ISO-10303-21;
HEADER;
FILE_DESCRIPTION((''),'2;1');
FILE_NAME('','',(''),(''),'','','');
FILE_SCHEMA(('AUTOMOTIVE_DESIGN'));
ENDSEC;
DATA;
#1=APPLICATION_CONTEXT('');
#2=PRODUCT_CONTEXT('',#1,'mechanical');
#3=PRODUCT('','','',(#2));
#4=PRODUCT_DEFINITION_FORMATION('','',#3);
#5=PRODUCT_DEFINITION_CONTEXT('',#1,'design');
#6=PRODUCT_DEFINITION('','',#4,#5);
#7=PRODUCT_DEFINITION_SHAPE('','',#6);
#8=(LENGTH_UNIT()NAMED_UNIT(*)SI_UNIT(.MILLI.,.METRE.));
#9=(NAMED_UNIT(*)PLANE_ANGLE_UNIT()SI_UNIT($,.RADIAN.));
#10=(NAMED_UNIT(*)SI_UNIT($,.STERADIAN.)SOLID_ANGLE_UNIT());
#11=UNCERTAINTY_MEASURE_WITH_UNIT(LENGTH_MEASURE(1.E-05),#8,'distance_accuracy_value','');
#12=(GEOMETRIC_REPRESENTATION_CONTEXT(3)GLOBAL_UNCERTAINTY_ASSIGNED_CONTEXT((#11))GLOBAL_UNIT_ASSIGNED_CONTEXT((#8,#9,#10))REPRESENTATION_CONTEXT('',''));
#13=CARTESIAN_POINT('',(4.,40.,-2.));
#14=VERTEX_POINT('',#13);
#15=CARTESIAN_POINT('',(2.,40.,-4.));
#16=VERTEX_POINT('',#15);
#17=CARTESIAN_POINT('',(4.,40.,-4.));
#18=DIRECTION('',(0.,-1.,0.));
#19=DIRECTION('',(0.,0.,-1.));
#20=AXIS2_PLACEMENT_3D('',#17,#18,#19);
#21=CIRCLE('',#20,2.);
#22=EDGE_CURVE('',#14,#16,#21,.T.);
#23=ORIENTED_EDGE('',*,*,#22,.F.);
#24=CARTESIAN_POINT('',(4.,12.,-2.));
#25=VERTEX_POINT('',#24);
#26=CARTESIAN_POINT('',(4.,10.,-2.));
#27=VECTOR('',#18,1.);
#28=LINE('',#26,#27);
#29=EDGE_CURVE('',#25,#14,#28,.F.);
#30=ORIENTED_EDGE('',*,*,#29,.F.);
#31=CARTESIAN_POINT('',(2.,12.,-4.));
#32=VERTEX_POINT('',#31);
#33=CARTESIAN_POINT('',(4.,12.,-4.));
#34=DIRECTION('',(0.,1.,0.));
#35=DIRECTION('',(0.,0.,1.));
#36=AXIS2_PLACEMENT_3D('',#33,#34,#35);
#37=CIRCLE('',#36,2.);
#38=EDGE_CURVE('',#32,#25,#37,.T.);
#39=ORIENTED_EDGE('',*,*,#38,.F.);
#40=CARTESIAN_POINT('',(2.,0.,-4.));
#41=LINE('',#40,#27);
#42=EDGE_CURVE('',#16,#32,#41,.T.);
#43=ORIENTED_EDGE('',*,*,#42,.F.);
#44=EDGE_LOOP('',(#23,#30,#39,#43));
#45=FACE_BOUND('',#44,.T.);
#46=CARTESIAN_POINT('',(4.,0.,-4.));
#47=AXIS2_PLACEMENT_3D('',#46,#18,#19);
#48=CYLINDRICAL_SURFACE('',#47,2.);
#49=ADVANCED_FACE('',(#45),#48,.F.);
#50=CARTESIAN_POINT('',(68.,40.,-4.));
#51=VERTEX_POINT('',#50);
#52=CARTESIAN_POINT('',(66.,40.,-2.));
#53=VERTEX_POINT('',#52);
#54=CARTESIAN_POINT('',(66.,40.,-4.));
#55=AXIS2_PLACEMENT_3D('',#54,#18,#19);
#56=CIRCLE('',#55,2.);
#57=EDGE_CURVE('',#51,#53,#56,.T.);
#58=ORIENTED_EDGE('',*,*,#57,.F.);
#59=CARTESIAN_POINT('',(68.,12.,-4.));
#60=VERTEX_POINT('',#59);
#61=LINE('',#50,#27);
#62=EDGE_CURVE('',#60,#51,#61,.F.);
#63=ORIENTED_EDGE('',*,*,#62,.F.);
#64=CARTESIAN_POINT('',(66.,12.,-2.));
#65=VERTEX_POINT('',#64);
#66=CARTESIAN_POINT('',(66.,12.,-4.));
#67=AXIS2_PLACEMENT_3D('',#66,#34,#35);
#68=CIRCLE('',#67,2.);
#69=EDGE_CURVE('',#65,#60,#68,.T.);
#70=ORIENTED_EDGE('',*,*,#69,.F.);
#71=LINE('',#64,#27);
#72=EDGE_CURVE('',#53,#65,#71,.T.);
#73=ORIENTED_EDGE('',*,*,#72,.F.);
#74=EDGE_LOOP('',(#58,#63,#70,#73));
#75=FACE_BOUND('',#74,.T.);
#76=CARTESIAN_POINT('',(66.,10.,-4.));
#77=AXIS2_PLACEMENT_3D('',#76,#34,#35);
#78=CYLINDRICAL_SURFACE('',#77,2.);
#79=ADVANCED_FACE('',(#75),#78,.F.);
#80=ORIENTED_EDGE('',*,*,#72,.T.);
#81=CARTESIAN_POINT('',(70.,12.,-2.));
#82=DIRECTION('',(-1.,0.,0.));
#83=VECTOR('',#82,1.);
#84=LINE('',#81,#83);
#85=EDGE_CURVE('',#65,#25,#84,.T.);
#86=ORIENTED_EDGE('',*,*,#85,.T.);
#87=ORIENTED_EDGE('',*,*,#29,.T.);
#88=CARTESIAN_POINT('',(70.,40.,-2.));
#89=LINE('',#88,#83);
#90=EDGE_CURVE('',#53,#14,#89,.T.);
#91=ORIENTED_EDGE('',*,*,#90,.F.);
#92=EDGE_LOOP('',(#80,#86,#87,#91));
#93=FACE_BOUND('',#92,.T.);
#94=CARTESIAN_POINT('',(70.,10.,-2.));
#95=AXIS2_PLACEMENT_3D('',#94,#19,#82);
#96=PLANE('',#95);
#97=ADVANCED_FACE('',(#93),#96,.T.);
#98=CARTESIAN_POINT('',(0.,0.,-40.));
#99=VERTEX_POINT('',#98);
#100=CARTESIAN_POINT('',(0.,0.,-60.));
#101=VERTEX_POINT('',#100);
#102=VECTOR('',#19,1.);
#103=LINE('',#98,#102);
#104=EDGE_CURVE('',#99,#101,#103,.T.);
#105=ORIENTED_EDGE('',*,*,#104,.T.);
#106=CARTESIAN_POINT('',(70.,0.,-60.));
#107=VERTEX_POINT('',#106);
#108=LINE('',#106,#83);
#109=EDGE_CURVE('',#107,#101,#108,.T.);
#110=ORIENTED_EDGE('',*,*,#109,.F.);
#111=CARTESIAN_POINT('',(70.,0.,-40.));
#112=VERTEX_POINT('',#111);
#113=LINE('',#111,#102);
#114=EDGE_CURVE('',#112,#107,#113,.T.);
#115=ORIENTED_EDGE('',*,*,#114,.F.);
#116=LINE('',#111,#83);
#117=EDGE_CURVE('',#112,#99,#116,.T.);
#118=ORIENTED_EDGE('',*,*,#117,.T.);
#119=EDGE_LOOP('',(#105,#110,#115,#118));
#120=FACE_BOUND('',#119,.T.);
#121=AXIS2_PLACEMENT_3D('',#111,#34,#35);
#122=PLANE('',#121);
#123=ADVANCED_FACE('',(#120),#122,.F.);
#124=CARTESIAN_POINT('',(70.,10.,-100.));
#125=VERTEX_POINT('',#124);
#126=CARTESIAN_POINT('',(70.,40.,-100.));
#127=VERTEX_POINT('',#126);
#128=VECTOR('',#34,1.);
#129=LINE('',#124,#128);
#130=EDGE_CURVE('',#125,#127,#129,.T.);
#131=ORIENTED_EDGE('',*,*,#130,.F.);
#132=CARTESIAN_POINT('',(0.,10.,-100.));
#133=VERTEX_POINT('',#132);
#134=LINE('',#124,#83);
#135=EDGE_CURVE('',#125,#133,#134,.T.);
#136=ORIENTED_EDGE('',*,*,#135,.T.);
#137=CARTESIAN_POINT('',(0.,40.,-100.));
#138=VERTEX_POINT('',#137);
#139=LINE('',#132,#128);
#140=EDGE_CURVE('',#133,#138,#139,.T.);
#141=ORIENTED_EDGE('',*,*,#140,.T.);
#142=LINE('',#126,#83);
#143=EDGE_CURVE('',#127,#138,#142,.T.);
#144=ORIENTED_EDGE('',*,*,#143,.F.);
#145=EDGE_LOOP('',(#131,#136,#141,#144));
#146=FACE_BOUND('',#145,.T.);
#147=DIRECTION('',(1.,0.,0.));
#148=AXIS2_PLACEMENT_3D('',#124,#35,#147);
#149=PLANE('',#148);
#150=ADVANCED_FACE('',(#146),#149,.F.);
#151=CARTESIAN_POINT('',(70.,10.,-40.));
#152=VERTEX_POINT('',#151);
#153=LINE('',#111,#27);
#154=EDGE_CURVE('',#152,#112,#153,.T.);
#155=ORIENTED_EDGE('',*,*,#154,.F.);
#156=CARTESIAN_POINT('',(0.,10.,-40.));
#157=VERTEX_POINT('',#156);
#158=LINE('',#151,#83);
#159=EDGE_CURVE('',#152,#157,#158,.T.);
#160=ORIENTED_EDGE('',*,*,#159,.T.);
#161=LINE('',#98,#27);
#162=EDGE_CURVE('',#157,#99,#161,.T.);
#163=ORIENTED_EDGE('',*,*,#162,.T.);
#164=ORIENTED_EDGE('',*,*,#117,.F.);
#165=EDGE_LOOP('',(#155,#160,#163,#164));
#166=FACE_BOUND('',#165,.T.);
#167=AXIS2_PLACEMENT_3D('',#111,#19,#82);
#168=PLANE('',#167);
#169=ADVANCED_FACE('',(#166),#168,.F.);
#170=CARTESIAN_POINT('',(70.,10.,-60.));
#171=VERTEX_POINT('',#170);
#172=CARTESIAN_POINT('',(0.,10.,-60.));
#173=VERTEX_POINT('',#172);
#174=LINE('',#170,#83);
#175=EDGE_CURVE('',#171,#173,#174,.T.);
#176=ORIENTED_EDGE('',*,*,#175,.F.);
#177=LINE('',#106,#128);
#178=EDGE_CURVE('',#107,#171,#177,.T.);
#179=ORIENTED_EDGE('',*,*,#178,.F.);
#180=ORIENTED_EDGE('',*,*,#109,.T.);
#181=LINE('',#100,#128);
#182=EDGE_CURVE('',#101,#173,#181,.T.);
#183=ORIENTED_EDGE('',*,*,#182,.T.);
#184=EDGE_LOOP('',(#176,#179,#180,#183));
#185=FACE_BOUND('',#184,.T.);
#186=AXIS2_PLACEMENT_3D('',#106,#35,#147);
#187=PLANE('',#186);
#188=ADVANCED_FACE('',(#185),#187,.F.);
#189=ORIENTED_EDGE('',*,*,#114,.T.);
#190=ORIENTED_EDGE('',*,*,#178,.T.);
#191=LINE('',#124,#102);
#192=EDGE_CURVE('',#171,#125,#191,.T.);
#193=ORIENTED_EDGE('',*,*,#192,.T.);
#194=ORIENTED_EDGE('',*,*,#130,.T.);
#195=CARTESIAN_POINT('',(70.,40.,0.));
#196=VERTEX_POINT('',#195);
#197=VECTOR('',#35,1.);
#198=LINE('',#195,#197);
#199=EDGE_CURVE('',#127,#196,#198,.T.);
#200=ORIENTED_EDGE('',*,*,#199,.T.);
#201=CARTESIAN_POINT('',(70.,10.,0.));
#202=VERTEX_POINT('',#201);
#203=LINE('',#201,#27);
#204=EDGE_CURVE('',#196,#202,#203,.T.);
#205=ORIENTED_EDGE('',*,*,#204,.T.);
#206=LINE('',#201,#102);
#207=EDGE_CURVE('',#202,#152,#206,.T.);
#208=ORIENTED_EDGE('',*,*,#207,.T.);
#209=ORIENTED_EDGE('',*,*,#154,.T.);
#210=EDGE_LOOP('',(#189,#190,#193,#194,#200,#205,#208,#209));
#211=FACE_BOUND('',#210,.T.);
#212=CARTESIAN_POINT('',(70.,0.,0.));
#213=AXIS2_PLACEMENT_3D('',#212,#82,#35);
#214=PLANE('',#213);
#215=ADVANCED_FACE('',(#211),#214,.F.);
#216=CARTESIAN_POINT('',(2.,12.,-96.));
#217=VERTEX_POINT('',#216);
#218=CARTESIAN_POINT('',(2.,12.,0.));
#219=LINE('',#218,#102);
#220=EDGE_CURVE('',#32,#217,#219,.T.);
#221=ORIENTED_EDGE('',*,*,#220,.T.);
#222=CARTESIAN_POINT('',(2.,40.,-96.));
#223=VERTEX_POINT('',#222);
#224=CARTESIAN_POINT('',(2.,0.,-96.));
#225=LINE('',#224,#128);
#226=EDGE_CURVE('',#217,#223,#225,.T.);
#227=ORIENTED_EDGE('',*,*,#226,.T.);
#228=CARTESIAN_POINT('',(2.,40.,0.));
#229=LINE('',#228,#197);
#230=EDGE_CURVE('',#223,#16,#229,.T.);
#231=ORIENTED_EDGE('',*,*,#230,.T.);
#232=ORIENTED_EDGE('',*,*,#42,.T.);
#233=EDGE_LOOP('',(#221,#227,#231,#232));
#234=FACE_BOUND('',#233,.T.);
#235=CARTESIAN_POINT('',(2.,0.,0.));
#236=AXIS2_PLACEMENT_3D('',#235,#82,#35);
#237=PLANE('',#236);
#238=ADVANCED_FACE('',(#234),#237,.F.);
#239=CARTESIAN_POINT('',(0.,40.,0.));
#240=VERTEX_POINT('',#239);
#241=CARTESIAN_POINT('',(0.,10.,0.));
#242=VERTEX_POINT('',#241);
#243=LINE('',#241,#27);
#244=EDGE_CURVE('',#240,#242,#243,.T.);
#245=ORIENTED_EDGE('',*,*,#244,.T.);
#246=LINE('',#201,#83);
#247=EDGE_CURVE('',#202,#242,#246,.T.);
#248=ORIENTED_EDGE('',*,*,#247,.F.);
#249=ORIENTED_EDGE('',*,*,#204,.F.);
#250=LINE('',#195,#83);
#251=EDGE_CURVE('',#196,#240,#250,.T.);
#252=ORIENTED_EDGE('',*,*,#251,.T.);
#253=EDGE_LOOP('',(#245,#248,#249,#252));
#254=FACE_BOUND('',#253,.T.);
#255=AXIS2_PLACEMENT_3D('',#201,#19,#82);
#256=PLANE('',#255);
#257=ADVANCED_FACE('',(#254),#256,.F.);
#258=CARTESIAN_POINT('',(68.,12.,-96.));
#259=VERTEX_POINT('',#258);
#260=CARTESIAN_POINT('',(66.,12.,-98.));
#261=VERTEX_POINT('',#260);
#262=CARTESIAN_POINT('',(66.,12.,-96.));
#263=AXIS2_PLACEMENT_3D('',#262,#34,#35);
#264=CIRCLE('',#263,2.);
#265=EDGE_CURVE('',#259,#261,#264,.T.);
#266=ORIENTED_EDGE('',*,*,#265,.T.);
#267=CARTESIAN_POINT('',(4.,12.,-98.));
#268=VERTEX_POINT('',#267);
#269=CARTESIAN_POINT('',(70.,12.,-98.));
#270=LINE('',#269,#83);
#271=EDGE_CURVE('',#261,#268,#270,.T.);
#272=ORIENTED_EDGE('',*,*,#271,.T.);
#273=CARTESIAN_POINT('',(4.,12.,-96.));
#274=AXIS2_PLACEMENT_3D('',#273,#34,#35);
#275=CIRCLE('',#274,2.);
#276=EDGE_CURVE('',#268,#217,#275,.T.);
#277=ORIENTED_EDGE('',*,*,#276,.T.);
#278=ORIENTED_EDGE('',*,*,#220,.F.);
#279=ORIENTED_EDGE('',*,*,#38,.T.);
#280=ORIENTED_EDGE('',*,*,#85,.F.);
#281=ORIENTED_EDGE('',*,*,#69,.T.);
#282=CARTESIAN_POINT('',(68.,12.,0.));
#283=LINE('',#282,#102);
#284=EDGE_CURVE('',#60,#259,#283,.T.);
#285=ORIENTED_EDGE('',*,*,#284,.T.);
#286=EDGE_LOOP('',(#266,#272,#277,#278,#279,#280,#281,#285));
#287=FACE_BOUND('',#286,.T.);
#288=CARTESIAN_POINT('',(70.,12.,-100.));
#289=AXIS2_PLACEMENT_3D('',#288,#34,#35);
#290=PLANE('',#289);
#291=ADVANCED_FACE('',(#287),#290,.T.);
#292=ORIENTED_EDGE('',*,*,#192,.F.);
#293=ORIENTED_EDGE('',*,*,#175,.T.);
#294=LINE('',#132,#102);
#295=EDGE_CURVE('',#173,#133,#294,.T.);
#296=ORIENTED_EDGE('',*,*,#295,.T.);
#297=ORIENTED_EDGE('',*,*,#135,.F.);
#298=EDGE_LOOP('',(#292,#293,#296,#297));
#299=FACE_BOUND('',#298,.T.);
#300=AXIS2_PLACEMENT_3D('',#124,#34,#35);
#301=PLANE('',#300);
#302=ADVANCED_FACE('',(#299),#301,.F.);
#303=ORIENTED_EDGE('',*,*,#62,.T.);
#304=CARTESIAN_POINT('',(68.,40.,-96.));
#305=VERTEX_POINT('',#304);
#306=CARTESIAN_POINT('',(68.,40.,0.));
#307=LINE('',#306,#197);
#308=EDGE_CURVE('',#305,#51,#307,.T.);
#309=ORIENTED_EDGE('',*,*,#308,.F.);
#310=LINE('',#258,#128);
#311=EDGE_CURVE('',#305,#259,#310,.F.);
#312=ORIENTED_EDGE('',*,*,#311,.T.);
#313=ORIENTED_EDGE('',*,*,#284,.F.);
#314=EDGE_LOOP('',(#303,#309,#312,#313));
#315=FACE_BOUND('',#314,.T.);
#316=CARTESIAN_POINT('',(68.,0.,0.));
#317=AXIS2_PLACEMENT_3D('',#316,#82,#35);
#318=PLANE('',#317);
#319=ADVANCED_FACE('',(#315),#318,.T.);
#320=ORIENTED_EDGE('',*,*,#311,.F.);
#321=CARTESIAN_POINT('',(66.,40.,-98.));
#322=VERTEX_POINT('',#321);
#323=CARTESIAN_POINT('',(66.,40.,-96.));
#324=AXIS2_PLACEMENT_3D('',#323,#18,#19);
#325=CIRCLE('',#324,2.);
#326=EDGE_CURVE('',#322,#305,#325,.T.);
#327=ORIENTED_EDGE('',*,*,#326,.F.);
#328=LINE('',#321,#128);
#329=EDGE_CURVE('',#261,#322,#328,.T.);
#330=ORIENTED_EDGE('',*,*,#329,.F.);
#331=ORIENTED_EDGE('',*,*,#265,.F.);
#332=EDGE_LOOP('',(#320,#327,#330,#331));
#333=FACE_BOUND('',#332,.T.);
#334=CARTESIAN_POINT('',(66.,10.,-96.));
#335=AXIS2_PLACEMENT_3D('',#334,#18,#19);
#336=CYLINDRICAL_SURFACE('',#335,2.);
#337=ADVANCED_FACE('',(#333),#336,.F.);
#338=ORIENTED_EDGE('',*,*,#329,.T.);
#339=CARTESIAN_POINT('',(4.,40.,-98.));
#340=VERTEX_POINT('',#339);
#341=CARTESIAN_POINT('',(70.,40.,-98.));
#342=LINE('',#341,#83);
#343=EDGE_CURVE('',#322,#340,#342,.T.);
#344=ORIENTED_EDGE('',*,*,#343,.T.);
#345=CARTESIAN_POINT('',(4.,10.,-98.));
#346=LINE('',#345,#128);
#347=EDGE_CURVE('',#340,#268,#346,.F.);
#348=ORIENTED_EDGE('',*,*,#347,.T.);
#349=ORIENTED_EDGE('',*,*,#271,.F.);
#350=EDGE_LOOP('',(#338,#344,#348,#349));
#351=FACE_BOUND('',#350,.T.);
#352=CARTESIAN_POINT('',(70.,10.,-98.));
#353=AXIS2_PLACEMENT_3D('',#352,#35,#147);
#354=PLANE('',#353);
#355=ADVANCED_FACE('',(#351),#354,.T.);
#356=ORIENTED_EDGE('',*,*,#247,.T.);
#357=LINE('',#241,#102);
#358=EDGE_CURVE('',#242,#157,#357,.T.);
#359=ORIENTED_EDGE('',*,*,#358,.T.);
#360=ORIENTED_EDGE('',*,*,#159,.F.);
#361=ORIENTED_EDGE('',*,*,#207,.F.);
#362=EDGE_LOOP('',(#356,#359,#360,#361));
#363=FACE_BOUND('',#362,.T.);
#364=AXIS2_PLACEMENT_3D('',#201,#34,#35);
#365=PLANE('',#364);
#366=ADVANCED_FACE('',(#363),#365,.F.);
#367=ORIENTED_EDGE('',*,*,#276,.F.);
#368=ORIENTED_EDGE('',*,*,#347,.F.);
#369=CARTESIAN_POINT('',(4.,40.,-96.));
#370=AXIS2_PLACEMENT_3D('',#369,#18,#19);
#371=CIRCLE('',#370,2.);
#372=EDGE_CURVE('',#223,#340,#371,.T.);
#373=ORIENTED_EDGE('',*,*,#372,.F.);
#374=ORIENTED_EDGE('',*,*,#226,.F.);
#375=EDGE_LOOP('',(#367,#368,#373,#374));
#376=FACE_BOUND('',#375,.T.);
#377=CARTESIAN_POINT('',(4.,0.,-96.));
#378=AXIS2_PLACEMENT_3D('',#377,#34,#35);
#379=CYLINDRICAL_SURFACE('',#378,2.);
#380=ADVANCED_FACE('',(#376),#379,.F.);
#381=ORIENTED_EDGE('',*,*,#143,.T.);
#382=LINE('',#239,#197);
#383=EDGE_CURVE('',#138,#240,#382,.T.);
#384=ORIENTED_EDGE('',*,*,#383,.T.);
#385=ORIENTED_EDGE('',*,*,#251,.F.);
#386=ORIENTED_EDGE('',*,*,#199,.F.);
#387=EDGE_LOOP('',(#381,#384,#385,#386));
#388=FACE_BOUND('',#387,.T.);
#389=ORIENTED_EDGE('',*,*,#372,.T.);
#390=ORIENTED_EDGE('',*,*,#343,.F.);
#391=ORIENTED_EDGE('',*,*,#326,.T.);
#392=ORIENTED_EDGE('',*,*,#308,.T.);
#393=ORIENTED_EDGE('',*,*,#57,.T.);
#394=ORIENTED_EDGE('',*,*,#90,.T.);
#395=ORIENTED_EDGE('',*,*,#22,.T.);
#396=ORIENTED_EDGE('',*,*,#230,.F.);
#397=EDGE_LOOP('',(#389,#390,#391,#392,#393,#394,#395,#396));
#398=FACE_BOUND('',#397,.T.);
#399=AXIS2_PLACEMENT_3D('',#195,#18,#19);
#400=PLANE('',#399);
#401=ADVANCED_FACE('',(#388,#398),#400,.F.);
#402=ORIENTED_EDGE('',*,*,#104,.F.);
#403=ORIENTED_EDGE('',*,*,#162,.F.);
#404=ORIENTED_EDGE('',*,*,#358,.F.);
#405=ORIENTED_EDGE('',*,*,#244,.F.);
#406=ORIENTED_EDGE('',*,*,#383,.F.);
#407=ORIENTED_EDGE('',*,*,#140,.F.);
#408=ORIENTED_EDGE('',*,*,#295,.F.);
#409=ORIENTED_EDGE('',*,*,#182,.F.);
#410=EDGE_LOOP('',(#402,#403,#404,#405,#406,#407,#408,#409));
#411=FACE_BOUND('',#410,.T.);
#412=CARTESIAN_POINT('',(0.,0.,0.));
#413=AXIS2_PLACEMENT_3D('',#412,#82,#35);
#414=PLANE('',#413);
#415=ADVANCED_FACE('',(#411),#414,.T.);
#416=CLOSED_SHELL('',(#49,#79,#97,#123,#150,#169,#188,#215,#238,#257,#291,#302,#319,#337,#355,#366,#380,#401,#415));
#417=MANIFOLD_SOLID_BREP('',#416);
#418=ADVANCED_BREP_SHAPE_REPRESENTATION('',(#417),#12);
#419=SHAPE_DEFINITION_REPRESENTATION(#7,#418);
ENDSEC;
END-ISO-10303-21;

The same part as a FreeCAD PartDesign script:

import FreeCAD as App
import Part
import Sketcher
Q = App.Units.Quantity


def edges_at(feature, points):
    """Names of the edges that pass closest to the given points."""
    edges = feature.Shape.Edges
    near = lambda p: min(range(len(edges)), key=lambda i: edges[i].distToShape(Part.Vertex(*p))[0])
    return sorted({f"Edge{near(p) + 1}" for p in points})


def faces_at(feature, points):
    """Names of the faces that lie closest to the given points."""
    faces = feature.Shape.Faces
    near = lambda p: min(range(len(faces)), key=lambda i: faces[i].distToShape(Part.Vertex(*p))[0])
    return sorted({f"Face{near(p) + 1}" for p in points})

doc = App.newDocument("Part")
body = doc.addObject("PartDesign::Body", "Body")

sketch1 = body.newObject("Sketcher::SketchObject", "Sketch")
sketch1.AttachmentSupport = (doc.getObject("YZ_Plane"), [""])
sketch1.MapMode = "FlatFace"
sketch1.addGeometry([
    Part.LineSegment(App.Vector(0, -40, 0), App.Vector(0, -60, 0)),
    Part.LineSegment(App.Vector(0, -60, 0), App.Vector(10, -60, 0)),
    Part.LineSegment(App.Vector(10, -60, 0), App.Vector(10, -100, 0)),
    Part.LineSegment(App.Vector(10, -100, 0), App.Vector(40, -100, 0)),
    Part.LineSegment(App.Vector(40, -100, 0), App.Vector(40, 0, 0)),
    Part.LineSegment(App.Vector(40, 0, 0), App.Vector(10, 0, 0)),
    Part.LineSegment(App.Vector(10, 0, 0), App.Vector(10, -40, 0)),
    Part.LineSegment(App.Vector(10, -40, 0), App.Vector(0, -40, 0)),
], False)
sketch1.addConstraint([
    Sketcher.Constraint("Coincident", 0, 2, 1, 1),
    Sketcher.Constraint("Coincident", 1, 2, 2, 1),
    Sketcher.Constraint("Coincident", 2, 2, 3, 1),
    Sketcher.Constraint("Coincident", 3, 2, 4, 1),
    Sketcher.Constraint("Coincident", 4, 2, 5, 1),
    Sketcher.Constraint("Coincident", 5, 2, 6, 1),
    Sketcher.Constraint("Coincident", 6, 2, 7, 1),
    Sketcher.Constraint("Coincident", 7, 2, 0, 1),
    Sketcher.Constraint("Vertical", 0),
    Sketcher.Constraint("Horizontal", 1),
    Sketcher.Constraint("Vertical", 2),
    Sketcher.Constraint("Horizontal", 3),
    Sketcher.Constraint("Vertical", 4),
    Sketcher.Constraint("Horizontal", 5),
    Sketcher.Constraint("Vertical", 6),
    Sketcher.Constraint("Horizontal", 7),
    Sketcher.Constraint("PointOnObject", 0, 2, -2),
    Sketcher.Constraint("PointOnObject", 4, 2, -1),
    Sketcher.Constraint("Vertical", 2, 2, 5, 2),
    Sketcher.Constraint("Equal", 2, 6),
    Sketcher.Constraint("DistanceX", 1, 1, 1, 2, Q("10 mm")),
    Sketcher.Constraint("DistanceX", 3, 1, 3, 2, Q("30 mm")),
    Sketcher.Constraint("DistanceY", 0, 2, 0, 1, Q("20 mm")),
    Sketcher.Constraint("DistanceY", 2, 2, 2, 1, Q("40 mm")),
])
pad1 = body.newObject("PartDesign::Pad", "Pad")
pad1.Profile = sketch1
pad1.Length = 70
doc.recompute()

thickness = body.newObject("PartDesign::Thickness", "Thickness")
thickness.Base = (pad1, faces_at(pad1, [(35, 40, -50)]))
thickness.Value = 2
thickness.Reversed = True
thickness.Join = "Intersection"

sketch2 = body.newObject("Sketcher::SketchObject", "Sketch001")
sketch2.AttachmentSupport = (doc.getObject("XZ_Plane"), [""])
sketch2.MapMode = "FlatFace"
sketch2.AttachmentOffset = App.Placement(App.Vector(0, 0, -2), App.Rotation())
sketch2.addGeometry([
    Part.LineSegment(App.Vector(68, -42, 0), App.Vector(2, -42, 0)),
    Part.LineSegment(App.Vector(2, -42, 0), App.Vector(2, -58, 0)),
    Part.LineSegment(App.Vector(2, -58, 0), App.Vector(68, -58, 0)),
    Part.LineSegment(App.Vector(68, -58, 0), App.Vector(68, -42, 0)),
], False)
sketch2.addConstraint([
    Sketcher.Constraint("Coincident", 0, 2, 1, 1),
    Sketcher.Constraint("Coincident", 1, 2, 2, 1),
    Sketcher.Constraint("Coincident", 2, 2, 3, 1),
    Sketcher.Constraint("Coincident", 3, 2, 0, 1),
    Sketcher.Constraint("Horizontal", 0),
    Sketcher.Constraint("Vertical", 1),
    Sketcher.Constraint("Horizontal", 2),
    Sketcher.Constraint("Vertical", 3),
    Sketcher.Constraint("DistanceX", 0, 2, 0, 1, Q("66 mm")),
    Sketcher.Constraint("DistanceY", 1, 2, 1, 1, Q("16 mm")),
    Sketcher.Constraint("DistanceX", -1, 1, 0, 2, Q("2 mm")),
    Sketcher.Constraint("DistanceY", 0, 2, -1, 1, Q("42 mm")),
])
pad2 = body.newObject("PartDesign::Pad", "Pad001")
pad2.Profile = sketch2
pad2.Length = 10
pad2.Reversed = True
doc.recompute()

fillet = body.newObject("PartDesign::Fillet", "Fillet")
fillet.Base = (pad2, edges_at(pad2, [
    (2, 26, -98),
    (2, 26, -2),
    (68, 26, -98),
    (68, 26, -2),
]))
fillet.Radius = 2

doc.recompute()
